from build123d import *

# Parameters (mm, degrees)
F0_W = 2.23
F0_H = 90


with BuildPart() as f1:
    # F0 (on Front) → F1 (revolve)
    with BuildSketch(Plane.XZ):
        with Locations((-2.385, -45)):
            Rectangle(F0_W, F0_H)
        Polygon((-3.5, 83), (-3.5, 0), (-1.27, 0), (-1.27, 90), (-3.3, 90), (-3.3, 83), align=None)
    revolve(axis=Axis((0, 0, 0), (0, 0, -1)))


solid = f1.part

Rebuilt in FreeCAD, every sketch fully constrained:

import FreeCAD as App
import Part
import Sketcher
from FreeCAD import Vector
Q = App.Units.Quantity


def add_polygon(sketch, points):
    """Adds a closed chain of lines whose ends are joined by coincident constraints."""
    first, n = sketch.GeometryCount, len(points)
    for a, b in zip(points, points[1:] + points[:1]):
        sketch.addGeometry(Part.LineSegment(App.Vector(*a, 0), App.Vector(*b, 0)), False)
    for i in range(n):
        sketch.addConstraint(Sketcher.Constraint("Coincident", first + i, 2, first + (i + 1) % n, 1))

doc = App.newDocument("Part")
body = doc.addObject("PartDesign::Body", "Body")

# Sketch on XZ plane
sketch1 = body.newObject("Sketcher::SketchObject", "Sketch")
sketch1.AttachmentSupport = (doc.getObject("XZ_Plane"), [""])
sketch1.MapMode = "FlatFace"
add_polygon(sketch1, [(-3.5, -90), (-1.27, -90), (-1.27, 90), (-3.3, 90), (-3.3, 83), (-3.5, 83)])  # lines 0-5
sketch1.addConstraint(Sketcher.Constraint("Horizontal", 0))
sketch1.addConstraint(Sketcher.Constraint("Vertical", 1))
sketch1.addConstraint(Sketcher.Constraint("Horizontal", 2))
sketch1.addConstraint(Sketcher.Constraint("Vertical", 3))
sketch1.addConstraint(Sketcher.Constraint("Horizontal", 4))
sketch1.addConstraint(Sketcher.Constraint("Vertical", 5))
sketch1.addConstraint(Sketcher.Constraint("DistanceY", 1, 1, 1, 2, Q("180 mm")))
sketch1.addConstraint(Sketcher.Constraint("DistanceY", 3, 2, 3, 1, Q("7 mm")))
sketch1.addConstraint(Sketcher.Constraint("DistanceX", 4, 2, 4, 1, Q("0.2 mm")))
sketch1.addConstraint(Sketcher.Constraint("DistanceY", 0, 2, -1, 1, Q("90 mm")))
sketch1.addConstraint(Sketcher.Constraint("DistanceX", 0, 1, 0, 2, Q("2.23 mm")))
sketch1.addConstraint(Sketcher.Constraint("DistanceX", 2, 2, -1, 1, Q("3.3 mm")))
revolution = body.newObject("PartDesign::Revolution", "Revolution")
revolution.Profile = sketch1
revolution.ReferenceAxis = (sketch1, ["V_Axis"])
revolution.Angle = 360

doc.recompute()
